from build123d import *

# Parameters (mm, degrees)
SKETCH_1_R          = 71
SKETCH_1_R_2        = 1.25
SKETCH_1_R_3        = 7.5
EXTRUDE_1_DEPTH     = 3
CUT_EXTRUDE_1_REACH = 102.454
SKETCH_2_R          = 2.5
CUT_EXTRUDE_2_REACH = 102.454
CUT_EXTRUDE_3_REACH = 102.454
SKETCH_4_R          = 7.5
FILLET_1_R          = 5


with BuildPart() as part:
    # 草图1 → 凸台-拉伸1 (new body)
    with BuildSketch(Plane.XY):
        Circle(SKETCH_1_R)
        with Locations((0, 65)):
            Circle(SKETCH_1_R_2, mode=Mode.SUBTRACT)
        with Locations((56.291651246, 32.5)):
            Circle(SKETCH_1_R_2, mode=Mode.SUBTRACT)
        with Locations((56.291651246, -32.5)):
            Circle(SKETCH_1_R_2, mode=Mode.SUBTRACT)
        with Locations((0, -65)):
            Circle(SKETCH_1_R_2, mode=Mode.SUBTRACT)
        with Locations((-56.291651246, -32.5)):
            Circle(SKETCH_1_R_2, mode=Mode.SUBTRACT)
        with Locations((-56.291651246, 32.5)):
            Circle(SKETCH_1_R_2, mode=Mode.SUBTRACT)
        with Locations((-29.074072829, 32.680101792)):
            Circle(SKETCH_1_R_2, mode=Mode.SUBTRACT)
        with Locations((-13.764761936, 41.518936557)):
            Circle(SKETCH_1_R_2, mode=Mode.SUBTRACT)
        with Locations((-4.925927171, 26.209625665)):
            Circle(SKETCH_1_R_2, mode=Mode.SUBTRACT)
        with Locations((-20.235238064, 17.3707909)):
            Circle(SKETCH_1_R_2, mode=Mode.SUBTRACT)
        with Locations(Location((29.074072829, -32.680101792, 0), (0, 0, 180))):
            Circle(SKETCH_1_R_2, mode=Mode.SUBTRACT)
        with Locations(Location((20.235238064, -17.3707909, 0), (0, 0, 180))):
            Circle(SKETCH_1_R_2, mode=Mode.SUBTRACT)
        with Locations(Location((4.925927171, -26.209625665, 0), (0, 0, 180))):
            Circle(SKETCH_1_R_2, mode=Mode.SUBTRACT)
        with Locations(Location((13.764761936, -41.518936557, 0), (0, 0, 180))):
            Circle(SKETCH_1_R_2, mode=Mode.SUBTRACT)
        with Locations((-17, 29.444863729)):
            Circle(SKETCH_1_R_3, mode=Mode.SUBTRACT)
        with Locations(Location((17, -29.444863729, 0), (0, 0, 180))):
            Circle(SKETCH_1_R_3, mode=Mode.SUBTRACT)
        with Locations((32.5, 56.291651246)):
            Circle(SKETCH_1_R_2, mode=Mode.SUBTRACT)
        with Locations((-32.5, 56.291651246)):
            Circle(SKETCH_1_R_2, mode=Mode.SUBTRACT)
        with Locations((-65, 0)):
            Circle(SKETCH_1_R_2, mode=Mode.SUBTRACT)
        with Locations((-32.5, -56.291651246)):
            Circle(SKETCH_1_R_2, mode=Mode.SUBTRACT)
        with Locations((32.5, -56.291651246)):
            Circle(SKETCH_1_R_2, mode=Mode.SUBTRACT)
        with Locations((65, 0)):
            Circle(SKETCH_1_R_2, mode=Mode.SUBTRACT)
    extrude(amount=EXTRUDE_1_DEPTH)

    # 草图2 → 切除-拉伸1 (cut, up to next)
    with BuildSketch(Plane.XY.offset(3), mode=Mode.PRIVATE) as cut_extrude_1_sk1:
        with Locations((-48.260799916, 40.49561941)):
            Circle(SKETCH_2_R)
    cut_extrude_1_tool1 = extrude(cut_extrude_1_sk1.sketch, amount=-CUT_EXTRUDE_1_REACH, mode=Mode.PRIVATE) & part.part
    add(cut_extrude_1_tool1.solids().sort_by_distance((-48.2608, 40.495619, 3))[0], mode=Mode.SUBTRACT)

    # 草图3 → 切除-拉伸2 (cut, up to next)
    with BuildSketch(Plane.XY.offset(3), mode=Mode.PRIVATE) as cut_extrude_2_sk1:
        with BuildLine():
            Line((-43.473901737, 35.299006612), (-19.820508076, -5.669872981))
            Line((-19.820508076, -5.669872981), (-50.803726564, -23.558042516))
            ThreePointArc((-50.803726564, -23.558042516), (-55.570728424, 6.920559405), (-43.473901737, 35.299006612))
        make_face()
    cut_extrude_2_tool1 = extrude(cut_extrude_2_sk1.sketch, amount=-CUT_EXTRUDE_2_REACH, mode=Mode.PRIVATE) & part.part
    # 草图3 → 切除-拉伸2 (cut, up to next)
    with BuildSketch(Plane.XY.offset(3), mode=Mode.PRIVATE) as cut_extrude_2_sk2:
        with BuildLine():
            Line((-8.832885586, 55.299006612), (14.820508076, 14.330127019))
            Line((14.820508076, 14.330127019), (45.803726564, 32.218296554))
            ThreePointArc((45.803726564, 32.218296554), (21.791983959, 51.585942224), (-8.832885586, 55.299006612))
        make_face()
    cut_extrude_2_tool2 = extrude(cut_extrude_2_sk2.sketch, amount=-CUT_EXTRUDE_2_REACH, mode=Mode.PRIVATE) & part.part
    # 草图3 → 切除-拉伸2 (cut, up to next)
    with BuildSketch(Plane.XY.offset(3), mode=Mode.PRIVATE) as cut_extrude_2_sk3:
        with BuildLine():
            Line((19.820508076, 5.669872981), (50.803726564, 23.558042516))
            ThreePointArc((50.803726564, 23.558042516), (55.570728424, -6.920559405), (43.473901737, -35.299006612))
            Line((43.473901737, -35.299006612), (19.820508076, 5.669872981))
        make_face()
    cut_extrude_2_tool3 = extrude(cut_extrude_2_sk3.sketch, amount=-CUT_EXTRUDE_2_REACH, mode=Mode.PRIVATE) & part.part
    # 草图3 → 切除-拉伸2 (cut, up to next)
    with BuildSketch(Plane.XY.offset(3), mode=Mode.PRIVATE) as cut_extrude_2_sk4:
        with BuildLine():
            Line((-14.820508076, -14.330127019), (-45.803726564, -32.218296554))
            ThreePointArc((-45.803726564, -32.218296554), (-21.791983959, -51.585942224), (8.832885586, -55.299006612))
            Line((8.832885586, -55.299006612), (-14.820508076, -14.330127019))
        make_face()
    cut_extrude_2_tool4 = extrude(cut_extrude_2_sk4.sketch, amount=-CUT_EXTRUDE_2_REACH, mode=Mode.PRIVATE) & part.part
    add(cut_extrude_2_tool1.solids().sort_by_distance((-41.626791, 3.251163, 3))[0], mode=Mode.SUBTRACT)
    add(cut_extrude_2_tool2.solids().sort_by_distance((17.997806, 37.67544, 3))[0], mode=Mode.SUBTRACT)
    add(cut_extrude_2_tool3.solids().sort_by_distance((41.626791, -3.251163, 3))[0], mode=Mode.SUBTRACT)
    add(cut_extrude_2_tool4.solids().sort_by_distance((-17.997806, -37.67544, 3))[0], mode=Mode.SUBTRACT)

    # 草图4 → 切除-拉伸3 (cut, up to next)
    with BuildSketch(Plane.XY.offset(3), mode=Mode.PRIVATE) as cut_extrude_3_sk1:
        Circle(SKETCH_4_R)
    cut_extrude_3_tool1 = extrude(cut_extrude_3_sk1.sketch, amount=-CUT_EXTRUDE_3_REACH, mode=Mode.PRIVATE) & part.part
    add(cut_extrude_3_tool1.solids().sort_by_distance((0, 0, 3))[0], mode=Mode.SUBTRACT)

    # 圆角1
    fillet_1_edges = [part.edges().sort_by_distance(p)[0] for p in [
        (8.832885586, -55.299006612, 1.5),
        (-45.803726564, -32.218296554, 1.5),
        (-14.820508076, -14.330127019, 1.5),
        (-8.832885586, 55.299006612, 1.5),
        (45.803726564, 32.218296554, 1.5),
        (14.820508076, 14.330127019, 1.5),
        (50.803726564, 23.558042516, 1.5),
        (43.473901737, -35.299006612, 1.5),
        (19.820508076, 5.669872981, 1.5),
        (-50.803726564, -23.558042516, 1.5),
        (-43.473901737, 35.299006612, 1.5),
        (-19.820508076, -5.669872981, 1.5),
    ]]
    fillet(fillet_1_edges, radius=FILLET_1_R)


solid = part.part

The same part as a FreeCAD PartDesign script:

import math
import FreeCAD as App
import Part
import Sketcher

V = App.Vector
Q = App.Units.Quantity


def edges_at(feature, points):
    """Names of the edges that pass closest to the given points."""
    edges = feature.Shape.Edges
    near = lambda p: min(range(len(edges)), key=lambda i: edges[i].distToShape(Part.Vertex(*p))[0])
    return sorted({f"Edge{near(p) + 1}" for p in points})

doc = App.newDocument("Part")
body = doc.addObject("PartDesign::Body", "Body")

# Sketch on XY plane
sketch1 = body.newObject("Sketcher::SketchObject", "Sketch")
sketch1.AttachmentSupport = (doc.getObject("XY_Plane"), [""])
sketch1.MapMode = "FlatFace"
sketch1.addGeometry(Part.Circle(V(0, 0, 0), V(0, 0, 1), 71), False)
sketch1.addGeometry(Part.Circle(V(-32.5, -56.3, 0), V(0, 0, 1), 1.2), False)
sketch1.addGeometry(Part.Circle(V(-56.3, -32.5, 0), V(0, 0, 1), 1.2), False)
sketch1.addGeometry(Part.Circle(V(0, -65, 0), V(0, 0, 1), 1.2), False)
sketch1.addGeometry(Part.Circle(V(32.5, -56.3, 0), V(0, 0, 1), 1.2), False)
sketch1.addGeometry(Part.Circle(V(13.8, -41.5, 0), V(0, 0, 1), 1.2), False)
sketch1.addGeometry(Part.Circle(V(4.9, -26.2, 0), V(0, 0, 1), 1.2), False)
sketch1.addGeometry(Part.Circle(V(17, -29.4, 0), V(0, 0, 1), 7.5), False)
sketch1.addGeometry(Part.Circle(V(29.1, -32.7, 0), V(0, 0, 1), 1.2), False)
sketch1.addGeometry(Part.Circle(V(20.2, -17.4, 0), V(0, 0, 1), 1.2), False)
sketch1.addGeometry(Part.Circle(V(56.3, -32.5, 0), V(0, 0, 1), 1.2), False)
sketch1.addGeometry(Part.Circle(V(-65, 0, 0), V(0, 0, 1), 1.2), False)
sketch1.addGeometry(Part.Circle(V(-56.3, 32.5, 0), V(0, 0, 1), 1.2), False)
sketch1.addGeometry(Part.Circle(V(-20.2, 17.4, 0), V(0, 0, 1), 1.2), False)
sketch1.addGeometry(Part.Circle(V(-29.1, 32.7, 0), V(0, 0, 1), 1.2), False)
sketch1.addGeometry(Part.Circle(V(-17, 29.4, 0), V(0, 0, 1), 7.5), False)
sketch1.addGeometry(Part.Circle(V(-4.9, 26.2, 0), V(0, 0, 1), 1.2), False)
sketch1.addGeometry(Part.Circle(V(-13.8, 41.5, 0), V(0, 0, 1), 1.2), False)
sketch1.addGeometry(Part.Circle(V(-32.5, 56.3, 0), V(0, 0, 1), 1.2), False)
sketch1.addGeometry(Part.Circle(V(65, 0, 0), V(0, 0, 1), 1.2), False)
sketch1.addGeometry(Part.Circle(V(56.3, 32.5, 0), V(0, 0, 1), 1.2), False)
sketch1.addGeometry(Part.Circle(V(0, 65, 0), V(0, 0, 1), 1.2), False)
sketch1.addGeometry(Part.Circle(V(32.5, 56.3, 0), V(0, 0, 1), 1.2), False)
sketch1.addConstraint(Sketcher.Constraint("Coincident", 0, 3, -1, 1))
sketch1.addConstraint(Sketcher.Constraint("Equal", 1, 2))
sketch1.addConstraint(Sketcher.Constraint("Equal", 2, 3))
sketch1.addConstraint(Sketcher.Constraint("Equal", 3, 4))
sketch1.addConstraint(Sketcher.Constraint("Equal", 4, 5))
sketch1.addConstraint(Sketcher.Constraint("Equal", 5, 6))
sketch1.addConstraint(Sketcher.Constraint("Equal", 6, 8))
sketch1.addConstraint(Sketcher.Constraint("Equal", 8, 9))
sketch1.addConstraint(Sketcher.Constraint("Equal", 9, 10))
sketch1.addConstraint(Sketcher.Constraint("Equal", 10, 11))
sketch1.addConstraint(Sketcher.Constraint("Equal", 11, 12))
sketch1.addConstraint(Sketcher.Constraint("Equal", 12, 13))
sketch1.addConstraint(Sketcher.Constraint("Equal", 13, 14))
sketch1.addConstraint(Sketcher.Constraint("Equal", 7, 15))
sketch1.addConstraint(Sketcher.Constraint("Equal", 14, 16))
sketch1.addConstraint(Sketcher.Constraint("Equal", 16, 17))
sketch1.addConstraint(Sketcher.Constraint("Equal", 17, 18))
sketch1.addConstraint(Sketcher.Constraint("Equal", 18, 19))
sketch1.addConstraint(Sketcher.Constraint("Equal", 19, 20))
sketch1.addConstraint(Sketcher.Constraint("Equal", 20, 21))
sketch1.addConstraint(Sketcher.Constraint("Equal", 21, 22))
sketch1.addConstraint(Sketcher.Constraint("Symmetric", 10, 3, 12, 3, -1, 1))
sketch1.addConstraint(Sketcher.Constraint("Symmetric", 9, 3, 13, 3, -1, 1))
sketch1.addConstraint(Sketcher.Constraint("Symmetric", 8, 3, 14, 3, -1, 1))
sketch1.addConstraint(Sketcher.Constraint("Symmetric", 7, 3, 15, 3, -1, 1))
sketch1.addConstraint(Sketcher.Constraint("Symmetric", 6, 3, 16, 3, -1, 1))
sketch1.addConstraint(Sketcher.Constraint("Symmetric", 5, 3, 17, 3, -1, 1))
sketch1.addConstraint(Sketcher.Constraint("Symmetric", 4, 3, 18, 3, -1, 1))
sketch1.addConstraint(Sketcher.Constraint("Symmetric", 11, 3, 19, 3, -1, 1))
sketch1.addConstraint(Sketcher.Constraint("Symmetric", 2, 3, 20, 3, -1, 1))
sketch1.addConstraint(Sketcher.Constraint("Symmetric", 3, 3, 21, 3, -1, 1))
sketch1.addConstraint(Sketcher.Constraint("Symmetric", 1, 3, 22, 3, -1, 1))
sketch1.addConstraint(Sketcher.Constraint("Symmetric", 1, 3, 4, 3, -2))
sketch1.addConstraint(Sketcher.Constraint("Symmetric", 2, 3, 10, 3, -2))
sketch1.addConstraint(Sketcher.Constraint("PointOnObject", 3, 3, -2))
sketch1.addConstraint(Sketcher.Constraint("PointOnObject", 11, 3, -1))
sketch1.addConstraint(Sketcher.Constraint("Diameter", 0, 142.0))
sketch1.addConstraint(Sketcher.Constraint("Diameter", 7, 15.0))
sketch1.addConstraint(Sketcher.Constraint("Diameter", 1, 2.5))
sketch1.addConstraint(Sketcher.Constraint("DistanceY", 3, 3, -1, 1, 65.0))
sketch1.addConstraint(Sketcher.Constraint("DistanceX", -1, 1, 7, 3, 17.0))
sketch1.addConstraint(Sketcher.Constraint("DistanceX", 11, 3, -1, 1, 65.0))
sketch1.addConstraint(Sketcher.Constraint("DistanceX", 1, 3, 4, 3, 65.0))
sketch1.addConstraint(Sketcher.Constraint("DistanceY", 2, 3, 12, 3, 65.0))
sketch1.addConstraint(Sketcher.Constraint("DistanceX", 14, 3, 6, 3, 34.0))
sketch1.addConstraint(Sketcher.Constraint("DistanceY", 8, 3, -1, 1, 32.680102))
sketch1.addConstraint(Sketcher.Constraint("DistanceY", 1, 3, -1, 1, 56.291651))
sketch1.addConstraint(Sketcher.Constraint("DistanceX", 2, 3, -1, 1, 56.291651))
sketch1.addConstraint(Sketcher.Constraint("DistanceX", -1, 1, 5, 3, 13.764762))
sketch1.addConstraint(Sketcher.Constraint("DistanceX", -1, 1, 9, 3, 20.235238))
sketch1.addConstraint(Sketcher.Constraint("DistanceY", 9, 3, -1, 1, 17.370791))
sketch1.addConstraint(Sketcher.Constraint("DistanceY", 5, 3, 6, 3, 15.309311))
sketch1.addConstraint(Sketcher.Constraint("DistanceY", 7, 3, 6, 3, 3.235238))
sketch1.addConstraint(Sketcher.Constraint("DistanceY", 8, 3, 7, 3, 3.235238))
sketch1.addConstraint(Sketcher.Constraint("DistanceX", 5, 3, 8, 3, 15.309311))
pad1 = body.newObject("PartDesign::Pad", "Pad")
pad1.Profile = sketch1
pad1.Length = 3

# Sketch on XY plane
sketch2 = body.newObject("Sketcher::SketchObject", "Sketch001")
sketch2.AttachmentSupport = (doc.getObject("XY_Plane"), [""])
sketch2.MapMode = "FlatFace"
sketch2.AttachmentOffset = App.Placement(V(0, 0, 3), App.Rotation())
sketch2.addGeometry(Part.Circle(V(-48.3, 40.5, 0), V(0, 0, 1), 2.5), False)
sketch2.addConstraint(Sketcher.Constraint("Diameter", 0, 5.0))
sketch2.addConstraint(Sketcher.Constraint("DistanceX", 0, 3, -1, 1, 48.2608))
sketch2.addConstraint(Sketcher.Constraint("DistanceY", -1, 1, 0, 3, 40.495619))
pocket1 = body.newObject("PartDesign::Pocket", "Pocket")
pocket1.Profile = sketch2
pocket1.Type = "UpToFirst"

# Sketch on XY plane
sketch3 = body.newObject("Sketcher::SketchObject", "Sketch002")
sketch3.AttachmentSupport = (doc.getObject("XY_Plane"), [""])
sketch3.MapMode = "FlatFace"
sketch3.AttachmentOffset = App.Placement(V(0, 0, 3), App.Rotation())
sketch3.addGeometry(Part.LineSegment(V(-20, -6, 0), V(-43, 35, 0)), False)
sketch3.addGeometry(Part.ArcOfCircle(Part.Circle(V(0, 0, 0), V(0, 0, 1), 56), math.radians(141), math.radians(205)), False)
sketch3.addGeometry(Part.LineSegment(V(-51, -24, 0), V(-20, -6, 0)), False)
sketch3.addConstraint(Sketcher.Constraint("Coincident", 0, 2, 1, 1))
sketch3.addConstraint(Sketcher.Constraint("Coincident", 1, 2, 2, 1))
sketch3.addConstraint(Sketcher.Constraint("Coincident", 2, 2, 0, 1))
sketch3.addConstraint(Sketcher.Constraint("Coincident", 1, 3, -1, 1))
sketch3.addConstraint(Sketcher.Constraint("Perpendicular", 0, 2))
sketch3.addConstraint(Sketcher.Constraint("Radius", 1, 56.0))
sketch3.addConstraint(Sketcher.Constraint("Angle", 0, Q("120 deg")))
sketch3.addConstraint(Sketcher.Constraint("DistanceX", 0, 2, -1, 1, 43.473902))
sketch3.addConstraint(Sketcher.Constraint("Distance", 2, 35.776339))
pocket2 = body.newObject("PartDesign::Pocket", "Pocket001")
pocket2.Profile = sketch3
pocket2.Type = "UpToFirst"

# Sketch on XY plane
sketch4 = body.newObject("Sketcher::SketchObject", "Sketch003")
sketch4.AttachmentSupport = (doc.getObject("XY_Plane"), [""])
sketch4.MapMode = "FlatFace"
sketch4.AttachmentOffset = App.Placement(V(0, 0, 3), App.Rotation())
sketch4.addGeometry(Part.LineSegment(V(-9, 55, 0), V(15, 14, 0)), False)
sketch4.addGeometry(Part.LineSegment(V(15, 14, 0), V(46, 32, 0)), False)
sketch4.addGeometry(Part.ArcOfCircle(Part.Circle(V(0, 0, 0), V(0, 0, 1), 56), math.radians(35), math.radians(99)), False)
sketch4.addConstraint(Sketcher.Constraint("Coincident", 0, 2, 1, 1))
sketch4.addConstraint(Sketcher.Constraint("Coincident", 1, 2, 2, 1))
sketch4.addConstraint(Sketcher.Constraint("Coincident", 2, 2, 0, 1))
sketch4.addConstraint(Sketcher.Constraint("Coincident", 2, 3, -1, 1))
sketch4.addConstraint(Sketcher.Constraint("Perpendicular", 0, 1))
sketch4.addConstraint(Sketcher.Constraint("Radius", 2, 56.0))
sketch4.addConstraint(Sketcher.Constraint("Angle", 0, Q("-60 deg")))
sketch4.addConstraint(Sketcher.Constraint("Distance", 1, 35.776339))
sketch4.addConstraint(Sketcher.Constraint("DistanceX", -1, 1, 0, 2, 14.820508))
pocket3 = body.newObject("PartDesign::Pocket", "Pocket002")
pocket3.Profile = sketch4
pocket3.Type = "UpToFirst"

# Sketch on XY plane
sketch5 = body.newObject("Sketcher::SketchObject", "Sketch004")
sketch5.AttachmentSupport = (doc.getObject("XY_Plane"), [""])
sketch5.MapMode = "FlatFace"
sketch5.AttachmentOffset = App.Placement(V(0, 0, 3), App.Rotation())
sketch5.addGeometry(Part.LineSegment(V(51, 24, 0), V(20, 6, 0)), False)
sketch5.addGeometry(Part.LineSegment(V(20, 6, 0), V(43, -35, 0)), False)
sketch5.addGeometry(Part.ArcOfCircle(Part.Circle(V(0, 0, 0), V(0, 0, 1), 56), math.radians(-39), math.radians(25)), False)
sketch5.addConstraint(Sketcher.Constraint("Coincident", 0, 2, 1, 1))
sketch5.addConstraint(Sketcher.Constraint("Coincident", 1, 2, 2, 1))
sketch5.addConstraint(Sketcher.Constraint("Coincident", 2, 2, 0, 1))
sketch5.addConstraint(Sketcher.Constraint("Coincident", 2, 3, -1, 1))
sketch5.addConstraint(Sketcher.Constraint("Perpendicular", 0, 1))
sketch5.addConstraint(Sketcher.Constraint("Radius", 2, 56.0))
sketch5.addConstraint(Sketcher.Constraint("Angle", 0, Q("-150 deg")))
sketch5.addConstraint(Sketcher.Constraint("DistanceX", -1, 1, 1, 2, 43.473902))
sketch5.addConstraint(Sketcher.Constraint("Distance", 0, 35.776339))
pocket4 = body.newObject("PartDesign::Pocket", "Pocket003")
pocket4.Profile = sketch5
pocket4.Type = "UpToFirst"

# Sketch on XY plane
sketch6 = body.newObject("Sketcher::SketchObject", "Sketch005")
sketch6.AttachmentSupport = (doc.getObject("XY_Plane"), [""])
sketch6.MapMode = "FlatFace"
sketch6.AttachmentOffset = App.Placement(V(0, 0, 3), App.Rotation())
sketch6.addGeometry(Part.LineSegment(V(-15, -14, 0), V(-46, -32, 0)), False)
sketch6.addGeometry(Part.ArcOfCircle(Part.Circle(V(0, 0, 0), V(0, 0, 1), 56), math.radians(-145), math.radians(-81)), False)
sketch6.addGeometry(Part.LineSegment(V(9, -55, 0), V(-15, -14, 0)), False)
sketch6.addConstraint(Sketcher.Constraint("Coincident", 0, 2, 1, 1))
sketch6.addConstraint(Sketcher.Constraint("Coincident", 1, 2, 2, 1))
sketch6.addConstraint(Sketcher.Constraint("Coincident", 2, 2, 0, 1))
sketch6.addConstraint(Sketcher.Constraint("Coincident", 1, 3, -1, 1))
sketch6.addConstraint(Sketcher.Constraint("Perpendicular", 0, 2))
sketch6.addConstraint(Sketcher.Constraint("Radius", 1, 56.0))
sketch6.addConstraint(Sketcher.Constraint("Angle", 0, Q("-150 deg")))
sketch6.addConstraint(Sketcher.Constraint("Distance", 0, 35.776339))
sketch6.addConstraint(Sketcher.Constraint("DistanceX", 2, 2, -1, 1, 14.820508))
pocket5 = body.newObject("PartDesign::Pocket", "Pocket004")
pocket5.Profile = sketch6
pocket5.Type = "UpToFirst"

# Sketch on XY plane
sketch7 = body.newObject("Sketcher::SketchObject", "Sketch006")
sketch7.AttachmentSupport = (doc.getObject("XY_Plane"), [""])
sketch7.MapMode = "FlatFace"
sketch7.AttachmentOffset = App.Placement(V(0, 0, 3), App.Rotation())
sketch7.addGeometry(Part.Circle(V(0, 0, 0), V(0, 0, 1), 8), False)
sketch7.addConstraint(Sketcher.Constraint("Coincident", 0, 3, -1, 1))
sketch7.addConstraint(Sketcher.Constraint("Diameter", 0, 15.0))
pocket6 = body.newObject("PartDesign::Pocket", "Pocket005")
pocket6.Profile = sketch7
pocket6.Type = "UpToFirst"
doc.recompute()

fillet = body.newObject("PartDesign::Fillet", "Fillet")
fillet.Base = (pocket6, edges_at(pocket6, [
    (8.833, -55.299, 1.5),
    (-45.804, -32.218, 1.5),
    (-14.821, -14.33, 1.5),
    (-8.833, 55.299, 1.5),
    (45.804, 32.218, 1.5),
    (14.821, 14.33, 1.5),
    (50.804, 23.558, 1.5),
    (43.474, -35.299, 1.5),
    (19.821, 5.67, 1.5),
    (-50.804, -23.558, 1.5),
    (-43.474, 35.299, 1.5),
    (-19.821, -5.67, 1.5),
]))
fillet.Radius = 5

doc.recompute()
